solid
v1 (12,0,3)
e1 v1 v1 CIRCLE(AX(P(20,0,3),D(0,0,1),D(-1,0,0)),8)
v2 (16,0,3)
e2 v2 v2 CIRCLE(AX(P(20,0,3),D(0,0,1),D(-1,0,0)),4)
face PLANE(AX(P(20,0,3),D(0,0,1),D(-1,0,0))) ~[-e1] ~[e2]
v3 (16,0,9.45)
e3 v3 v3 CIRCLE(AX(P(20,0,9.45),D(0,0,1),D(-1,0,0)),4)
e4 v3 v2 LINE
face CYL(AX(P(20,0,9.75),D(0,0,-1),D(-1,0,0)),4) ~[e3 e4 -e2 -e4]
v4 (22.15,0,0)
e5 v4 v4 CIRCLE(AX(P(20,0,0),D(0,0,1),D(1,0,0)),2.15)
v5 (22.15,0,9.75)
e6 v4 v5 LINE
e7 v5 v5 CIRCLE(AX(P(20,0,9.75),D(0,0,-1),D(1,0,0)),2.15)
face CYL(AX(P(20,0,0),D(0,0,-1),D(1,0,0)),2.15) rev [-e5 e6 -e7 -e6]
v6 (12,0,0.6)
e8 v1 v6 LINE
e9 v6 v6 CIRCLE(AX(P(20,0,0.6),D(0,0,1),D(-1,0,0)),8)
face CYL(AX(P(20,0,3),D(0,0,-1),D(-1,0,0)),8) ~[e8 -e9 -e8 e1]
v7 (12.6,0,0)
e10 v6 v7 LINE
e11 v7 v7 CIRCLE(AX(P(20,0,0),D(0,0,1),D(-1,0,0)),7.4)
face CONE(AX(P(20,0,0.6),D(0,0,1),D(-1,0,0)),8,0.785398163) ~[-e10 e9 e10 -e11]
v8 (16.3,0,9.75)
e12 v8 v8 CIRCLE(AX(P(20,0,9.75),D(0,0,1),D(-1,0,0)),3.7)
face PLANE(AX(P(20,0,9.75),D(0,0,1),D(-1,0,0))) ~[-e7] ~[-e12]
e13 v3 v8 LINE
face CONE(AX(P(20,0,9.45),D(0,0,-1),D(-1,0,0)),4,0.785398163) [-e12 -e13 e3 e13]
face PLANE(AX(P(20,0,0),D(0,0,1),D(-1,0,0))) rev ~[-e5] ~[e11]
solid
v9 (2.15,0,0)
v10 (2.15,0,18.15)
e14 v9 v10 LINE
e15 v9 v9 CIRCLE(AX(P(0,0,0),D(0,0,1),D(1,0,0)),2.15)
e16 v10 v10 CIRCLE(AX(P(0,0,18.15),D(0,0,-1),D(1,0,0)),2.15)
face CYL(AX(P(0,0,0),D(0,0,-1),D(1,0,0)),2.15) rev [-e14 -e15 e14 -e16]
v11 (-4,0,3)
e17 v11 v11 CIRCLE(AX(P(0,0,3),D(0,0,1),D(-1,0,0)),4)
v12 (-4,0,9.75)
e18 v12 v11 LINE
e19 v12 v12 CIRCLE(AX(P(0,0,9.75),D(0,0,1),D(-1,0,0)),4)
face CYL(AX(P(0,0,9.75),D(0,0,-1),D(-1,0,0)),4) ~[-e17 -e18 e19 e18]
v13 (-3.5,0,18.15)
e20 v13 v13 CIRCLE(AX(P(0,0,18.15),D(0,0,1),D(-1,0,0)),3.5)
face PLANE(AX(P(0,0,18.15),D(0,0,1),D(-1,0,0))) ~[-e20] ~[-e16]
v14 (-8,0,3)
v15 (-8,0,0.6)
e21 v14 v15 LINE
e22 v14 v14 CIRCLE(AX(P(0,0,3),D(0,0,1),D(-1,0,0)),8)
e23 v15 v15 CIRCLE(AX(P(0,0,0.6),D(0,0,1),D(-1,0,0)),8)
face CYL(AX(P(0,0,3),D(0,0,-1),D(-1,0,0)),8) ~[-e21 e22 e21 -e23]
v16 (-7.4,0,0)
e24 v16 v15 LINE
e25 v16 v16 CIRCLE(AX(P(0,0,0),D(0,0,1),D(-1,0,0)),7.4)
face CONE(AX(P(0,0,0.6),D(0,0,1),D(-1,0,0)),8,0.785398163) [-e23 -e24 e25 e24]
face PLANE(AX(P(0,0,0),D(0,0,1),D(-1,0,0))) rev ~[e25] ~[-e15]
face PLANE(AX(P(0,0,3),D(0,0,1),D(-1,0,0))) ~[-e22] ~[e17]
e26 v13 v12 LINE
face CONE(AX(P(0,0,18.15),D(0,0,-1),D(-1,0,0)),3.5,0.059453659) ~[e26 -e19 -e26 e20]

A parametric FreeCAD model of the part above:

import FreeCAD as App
import Part
import Sketcher
Q = App.Units.Quantity


def edges_at(feature, points):
    """Names of the edges that pass closest to the given points."""
    edges = feature.Shape.Edges
    near = lambda p: min(range(len(edges)), key=lambda i: edges[i].distToShape(Part.Vertex(*p))[0])
    return sorted({f"Edge{near(p) + 1}" for p in points})

doc = App.newDocument("Part")
body = doc.addObject("PartDesign::Body", "Body")

# Sketch on XZ plane
sketch1 = body.newObject("Sketcher::SketchObject", "Sketch")
sketch1.AttachmentSupport = (doc.getObject("XZ_Plane"), [""])
sketch1.MapMode = "FlatFace"
sketch1.addGeometry(Part.LineSegment(App.Vector(-3.5, 18.1, 0), App.Vector(-4, 9.8, 0)), False)
sketch1.addGeometry(Part.LineSegment(App.Vector(-4, 9.8, 0), App.Vector(-4, 3, 0)), False)
sketch1.addGeometry(Part.LineSegment(App.Vector(-4, 3, 0), App.Vector(-8, 3, 0)), False)
sketch1.addGeometry(Part.LineSegment(App.Vector(-8, 3, 0), App.Vector(-8, 0, 0)), False)
sketch1.addGeometry(Part.LineSegment(App.Vector(-8, 0, 0), App.Vector(0, 0, 0)), False)
sketch1.addGeometry(Part.LineSegment(App.Vector(0, 0, 0), App.Vector(0, 18.1, 0)), False)
sketch1.addGeometry(Part.LineSegment(App.Vector(0, 18.1, 0), App.Vector(-3.5, 18.1, 0)), False)
sketch1.addConstraint(Sketcher.Constraint("Coincident", 0, 2, 1, 1))
sketch1.addConstraint(Sketcher.Constraint("Coincident", 1, 2, 2, 1))
sketch1.addConstraint(Sketcher.Constraint("Coincident", 2, 2, 3, 1))
sketch1.addConstraint(Sketcher.Constraint("Coincident", 3, 2, 4, 1))
sketch1.addConstraint(Sketcher.Constraint("Coincident", 4, 2, 5, 1))
sketch1.addConstraint(Sketcher.Constraint("Coincident", 5, 2, 6, 1))
sketch1.addConstraint(Sketcher.Constraint("Coincident", 6, 2, 0, 1))
sketch1.addConstraint(Sketcher.Constraint("Vertical", 1))
sketch1.addConstraint(Sketcher.Constraint("Horizontal", 2))
sketch1.addConstraint(Sketcher.Constraint("Vertical", 3))
sketch1.addConstraint(Sketcher.Constraint("Horizontal", 4))
sketch1.addConstraint(Sketcher.Constraint("Vertical", 5))
sketch1.addConstraint(Sketcher.Constraint("Horizontal", 6))
sketch1.addConstraint(Sketcher.Constraint("Coincident", 4, 2, -1, 1))
sketch1.addConstraint(Sketcher.Constraint("DistanceX", 2, 2, 2, 1, Q("4 mm")))
sketch1.addConstraint(Sketcher.Constraint("DistanceX", 4, 1, 4, 2, Q("8 mm")))
sketch1.addConstraint(Sketcher.Constraint("DistanceY", 3, 2, 3, 1, Q("3 mm")))
sketch1.addConstraint(Sketcher.Constraint("DistanceX", 6, 2, 6, 1, Q("3.5 mm")))
sketch1.addConstraint(Sketcher.Constraint("DistanceY", 1, 2, 1, 1, Q("6.75 mm")))
sketch1.addConstraint(Sketcher.Constraint("DistanceY", 5, 1, 5, 2, Q("18.15 mm")))
revolution = body.newObject("PartDesign::Revolution", "Revolution")
revolution.Profile = sketch1
revolution.ReferenceAxis = (sketch1, ["V_Axis"])
revolution.Angle = 360
body2 = doc.addObject("PartDesign::Body", "Body001")

# Sketch on XZ plane
sketch2 = body2.newObject("Sketcher::SketchObject", "Sketch001")
sketch2.AttachmentSupport = (doc.getObject("XZ_Plane001"), [""])
sketch2.MapMode = "FlatFace"
sketch2.addGeometry(Part.LineSegment(App.Vector(12, 3, 0), App.Vector(12, 0, 0)), False)
sketch2.addGeometry(Part.LineSegment(App.Vector(12, 0, 0), App.Vector(20, 0, 0)), False)
sketch2.addGeometry(Part.LineSegment(App.Vector(20, 0, 0), App.Vector(20, 9.8, 0)), False)
sketch2.addGeometry(Part.LineSegment(App.Vector(20, 9.8, 0), App.Vector(16, 9.8, 0)), False)
sketch2.addGeometry(Part.LineSegment(App.Vector(16, 9.8, 0), App.Vector(16, 3, 0)), False)
sketch2.addGeometry(Part.LineSegment(App.Vector(16, 3, 0), App.Vector(12, 3, 0)), False)
sketch2.addGeometry(Part.LineSegment(App.Vector(20, 0, 0), App.Vector(20, 9.8, 0)), True)  # axis
sketch2.addConstraint(Sketcher.Constraint("Coincident", 0, 2, 1, 1))
sketch2.addConstraint(Sketcher.Constraint("Coincident", 1, 2, 2, 1))
sketch2.addConstraint(Sketcher.Constraint("Coincident", 2, 2, 3, 1))
sketch2.addConstraint(Sketcher.Constraint("Coincident", 3, 2, 4, 1))
sketch2.addConstraint(Sketcher.Constraint("Coincident", 4, 2, 5, 1))
sketch2.addConstraint(Sketcher.Constraint("Coincident", 5, 2, 0, 1))
sketch2.addConstraint(Sketcher.Constraint("Vertical", 0))
sketch2.addConstraint(Sketcher.Constraint("Horizontal", 1))
sketch2.addConstraint(Sketcher.Constraint("Vertical", 2))
sketch2.addConstraint(Sketcher.Constraint("Horizontal", 3))
sketch2.addConstraint(Sketcher.Constraint("Vertical", 4))
sketch2.addConstraint(Sketcher.Constraint("Horizontal", 5))
sketch2.addConstraint(Sketcher.Constraint("Vertical", 6))
sketch2.addConstraint(Sketcher.Constraint("Coincident", 6, 1, 1, 2))
sketch2.addConstraint(Sketcher.Constraint("PointOnObject", 0, 2, -1))
sketch2.addConstraint(Sketcher.Constraint("Horizontal", 3, 2, 6, 2))
sketch2.addConstraint(Sketcher.Constraint("Equal", 3, 5))
sketch2.addConstraint(Sketcher.Constraint("DistanceX", 1, 1, 1, 2, Q("8 mm")))
sketch2.addConstraint(Sketcher.Constraint("DistanceY", 0, 2, 0, 1, Q("3 mm")))
sketch2.addConstraint(Sketcher.Constraint("DistanceX", -1, 1, 0, 2, Q("12 mm")))
sketch2.addConstraint(Sketcher.Constraint("DistanceY", 2, 1, 2, 2, Q("9.75 mm")))
revolution2 = body2.newObject("PartDesign::Revolution", "Revolution001")
revolution2.Profile = sketch2
revolution2.ReferenceAxis = (sketch2, ["Axis0"])
revolution2.Angle = 360
body3 = doc.addObject("PartDesign::Body", "Body002")
body3.AllowCompound = True

# Sketch on XY plane
sketch3 = body3.newObject("Sketcher::SketchObject", "Sketch002")
sketch3.AttachmentSupport = (doc.getObject("XY_Plane002"), [""])
sketch3.MapMode = "FlatFace"
sketch3.addGeometry(Part.Circle(App.Vector(0, 0, 0), App.Vector(0, 0, 1), 2.1), False)
sketch3.addGeometry(Part.Circle(App.Vector(20, 0, 0), App.Vector(0, 0, 1), 2.1), False)
sketch3.addConstraint(Sketcher.Constraint("Coincident", 0, 3, -1, 1))
sketch3.addConstraint(Sketcher.Constraint("Equal", 0, 1))
sketch3.addConstraint(Sketcher.Constraint("PointOnObject", 1, 3, -1))
sketch3.addConstraint(Sketcher.Constraint("Diameter", 0, Q("4.3 mm")))
sketch3.addConstraint(Sketcher.Constraint("DistanceX", -1, 1, 1, 3, Q("20 mm")))
pad1 = body3.newObject("PartDesign::Pad", "Pad")
pad1.Profile = sketch3
pad1.Length = 18.151
doc.recompute()

body4 = doc.addObject("PartDesign::Body", "Body003")
body4.BaseFeature = body3
boolean = body.newObject("PartDesign::Boolean", "Boolean")
boolean.Type = "Cut"
boolean.addObjects([body4])
doc.recompute()

chamfer = body.newObject("PartDesign::Chamfer", "Chamfer")
chamfer.Base = (boolean, edges_at(boolean, [(8, 0, 0)]))
chamfer.Size = 0.6
doc.recompute()

boolean2 = body2.newObject("PartDesign::Boolean", "Boolean001")
boolean2.Type = "Cut"
boolean2.addObjects([body3])
doc.recompute()

chamfer2 = body2.newObject("PartDesign::Chamfer", "Chamfer001")
chamfer2.Base = (boolean2, edges_at(boolean2, [(28, 0, 0)]))
chamfer2.Size = 0.6
doc.recompute()

chamfer3 = body2.newObject("PartDesign::Chamfer", "Chamfer002")
chamfer3.Base = (chamfer2, edges_at(chamfer2, [(24, 0, 9.75)]))
chamfer3.Size = 0.3

doc.recompute()
